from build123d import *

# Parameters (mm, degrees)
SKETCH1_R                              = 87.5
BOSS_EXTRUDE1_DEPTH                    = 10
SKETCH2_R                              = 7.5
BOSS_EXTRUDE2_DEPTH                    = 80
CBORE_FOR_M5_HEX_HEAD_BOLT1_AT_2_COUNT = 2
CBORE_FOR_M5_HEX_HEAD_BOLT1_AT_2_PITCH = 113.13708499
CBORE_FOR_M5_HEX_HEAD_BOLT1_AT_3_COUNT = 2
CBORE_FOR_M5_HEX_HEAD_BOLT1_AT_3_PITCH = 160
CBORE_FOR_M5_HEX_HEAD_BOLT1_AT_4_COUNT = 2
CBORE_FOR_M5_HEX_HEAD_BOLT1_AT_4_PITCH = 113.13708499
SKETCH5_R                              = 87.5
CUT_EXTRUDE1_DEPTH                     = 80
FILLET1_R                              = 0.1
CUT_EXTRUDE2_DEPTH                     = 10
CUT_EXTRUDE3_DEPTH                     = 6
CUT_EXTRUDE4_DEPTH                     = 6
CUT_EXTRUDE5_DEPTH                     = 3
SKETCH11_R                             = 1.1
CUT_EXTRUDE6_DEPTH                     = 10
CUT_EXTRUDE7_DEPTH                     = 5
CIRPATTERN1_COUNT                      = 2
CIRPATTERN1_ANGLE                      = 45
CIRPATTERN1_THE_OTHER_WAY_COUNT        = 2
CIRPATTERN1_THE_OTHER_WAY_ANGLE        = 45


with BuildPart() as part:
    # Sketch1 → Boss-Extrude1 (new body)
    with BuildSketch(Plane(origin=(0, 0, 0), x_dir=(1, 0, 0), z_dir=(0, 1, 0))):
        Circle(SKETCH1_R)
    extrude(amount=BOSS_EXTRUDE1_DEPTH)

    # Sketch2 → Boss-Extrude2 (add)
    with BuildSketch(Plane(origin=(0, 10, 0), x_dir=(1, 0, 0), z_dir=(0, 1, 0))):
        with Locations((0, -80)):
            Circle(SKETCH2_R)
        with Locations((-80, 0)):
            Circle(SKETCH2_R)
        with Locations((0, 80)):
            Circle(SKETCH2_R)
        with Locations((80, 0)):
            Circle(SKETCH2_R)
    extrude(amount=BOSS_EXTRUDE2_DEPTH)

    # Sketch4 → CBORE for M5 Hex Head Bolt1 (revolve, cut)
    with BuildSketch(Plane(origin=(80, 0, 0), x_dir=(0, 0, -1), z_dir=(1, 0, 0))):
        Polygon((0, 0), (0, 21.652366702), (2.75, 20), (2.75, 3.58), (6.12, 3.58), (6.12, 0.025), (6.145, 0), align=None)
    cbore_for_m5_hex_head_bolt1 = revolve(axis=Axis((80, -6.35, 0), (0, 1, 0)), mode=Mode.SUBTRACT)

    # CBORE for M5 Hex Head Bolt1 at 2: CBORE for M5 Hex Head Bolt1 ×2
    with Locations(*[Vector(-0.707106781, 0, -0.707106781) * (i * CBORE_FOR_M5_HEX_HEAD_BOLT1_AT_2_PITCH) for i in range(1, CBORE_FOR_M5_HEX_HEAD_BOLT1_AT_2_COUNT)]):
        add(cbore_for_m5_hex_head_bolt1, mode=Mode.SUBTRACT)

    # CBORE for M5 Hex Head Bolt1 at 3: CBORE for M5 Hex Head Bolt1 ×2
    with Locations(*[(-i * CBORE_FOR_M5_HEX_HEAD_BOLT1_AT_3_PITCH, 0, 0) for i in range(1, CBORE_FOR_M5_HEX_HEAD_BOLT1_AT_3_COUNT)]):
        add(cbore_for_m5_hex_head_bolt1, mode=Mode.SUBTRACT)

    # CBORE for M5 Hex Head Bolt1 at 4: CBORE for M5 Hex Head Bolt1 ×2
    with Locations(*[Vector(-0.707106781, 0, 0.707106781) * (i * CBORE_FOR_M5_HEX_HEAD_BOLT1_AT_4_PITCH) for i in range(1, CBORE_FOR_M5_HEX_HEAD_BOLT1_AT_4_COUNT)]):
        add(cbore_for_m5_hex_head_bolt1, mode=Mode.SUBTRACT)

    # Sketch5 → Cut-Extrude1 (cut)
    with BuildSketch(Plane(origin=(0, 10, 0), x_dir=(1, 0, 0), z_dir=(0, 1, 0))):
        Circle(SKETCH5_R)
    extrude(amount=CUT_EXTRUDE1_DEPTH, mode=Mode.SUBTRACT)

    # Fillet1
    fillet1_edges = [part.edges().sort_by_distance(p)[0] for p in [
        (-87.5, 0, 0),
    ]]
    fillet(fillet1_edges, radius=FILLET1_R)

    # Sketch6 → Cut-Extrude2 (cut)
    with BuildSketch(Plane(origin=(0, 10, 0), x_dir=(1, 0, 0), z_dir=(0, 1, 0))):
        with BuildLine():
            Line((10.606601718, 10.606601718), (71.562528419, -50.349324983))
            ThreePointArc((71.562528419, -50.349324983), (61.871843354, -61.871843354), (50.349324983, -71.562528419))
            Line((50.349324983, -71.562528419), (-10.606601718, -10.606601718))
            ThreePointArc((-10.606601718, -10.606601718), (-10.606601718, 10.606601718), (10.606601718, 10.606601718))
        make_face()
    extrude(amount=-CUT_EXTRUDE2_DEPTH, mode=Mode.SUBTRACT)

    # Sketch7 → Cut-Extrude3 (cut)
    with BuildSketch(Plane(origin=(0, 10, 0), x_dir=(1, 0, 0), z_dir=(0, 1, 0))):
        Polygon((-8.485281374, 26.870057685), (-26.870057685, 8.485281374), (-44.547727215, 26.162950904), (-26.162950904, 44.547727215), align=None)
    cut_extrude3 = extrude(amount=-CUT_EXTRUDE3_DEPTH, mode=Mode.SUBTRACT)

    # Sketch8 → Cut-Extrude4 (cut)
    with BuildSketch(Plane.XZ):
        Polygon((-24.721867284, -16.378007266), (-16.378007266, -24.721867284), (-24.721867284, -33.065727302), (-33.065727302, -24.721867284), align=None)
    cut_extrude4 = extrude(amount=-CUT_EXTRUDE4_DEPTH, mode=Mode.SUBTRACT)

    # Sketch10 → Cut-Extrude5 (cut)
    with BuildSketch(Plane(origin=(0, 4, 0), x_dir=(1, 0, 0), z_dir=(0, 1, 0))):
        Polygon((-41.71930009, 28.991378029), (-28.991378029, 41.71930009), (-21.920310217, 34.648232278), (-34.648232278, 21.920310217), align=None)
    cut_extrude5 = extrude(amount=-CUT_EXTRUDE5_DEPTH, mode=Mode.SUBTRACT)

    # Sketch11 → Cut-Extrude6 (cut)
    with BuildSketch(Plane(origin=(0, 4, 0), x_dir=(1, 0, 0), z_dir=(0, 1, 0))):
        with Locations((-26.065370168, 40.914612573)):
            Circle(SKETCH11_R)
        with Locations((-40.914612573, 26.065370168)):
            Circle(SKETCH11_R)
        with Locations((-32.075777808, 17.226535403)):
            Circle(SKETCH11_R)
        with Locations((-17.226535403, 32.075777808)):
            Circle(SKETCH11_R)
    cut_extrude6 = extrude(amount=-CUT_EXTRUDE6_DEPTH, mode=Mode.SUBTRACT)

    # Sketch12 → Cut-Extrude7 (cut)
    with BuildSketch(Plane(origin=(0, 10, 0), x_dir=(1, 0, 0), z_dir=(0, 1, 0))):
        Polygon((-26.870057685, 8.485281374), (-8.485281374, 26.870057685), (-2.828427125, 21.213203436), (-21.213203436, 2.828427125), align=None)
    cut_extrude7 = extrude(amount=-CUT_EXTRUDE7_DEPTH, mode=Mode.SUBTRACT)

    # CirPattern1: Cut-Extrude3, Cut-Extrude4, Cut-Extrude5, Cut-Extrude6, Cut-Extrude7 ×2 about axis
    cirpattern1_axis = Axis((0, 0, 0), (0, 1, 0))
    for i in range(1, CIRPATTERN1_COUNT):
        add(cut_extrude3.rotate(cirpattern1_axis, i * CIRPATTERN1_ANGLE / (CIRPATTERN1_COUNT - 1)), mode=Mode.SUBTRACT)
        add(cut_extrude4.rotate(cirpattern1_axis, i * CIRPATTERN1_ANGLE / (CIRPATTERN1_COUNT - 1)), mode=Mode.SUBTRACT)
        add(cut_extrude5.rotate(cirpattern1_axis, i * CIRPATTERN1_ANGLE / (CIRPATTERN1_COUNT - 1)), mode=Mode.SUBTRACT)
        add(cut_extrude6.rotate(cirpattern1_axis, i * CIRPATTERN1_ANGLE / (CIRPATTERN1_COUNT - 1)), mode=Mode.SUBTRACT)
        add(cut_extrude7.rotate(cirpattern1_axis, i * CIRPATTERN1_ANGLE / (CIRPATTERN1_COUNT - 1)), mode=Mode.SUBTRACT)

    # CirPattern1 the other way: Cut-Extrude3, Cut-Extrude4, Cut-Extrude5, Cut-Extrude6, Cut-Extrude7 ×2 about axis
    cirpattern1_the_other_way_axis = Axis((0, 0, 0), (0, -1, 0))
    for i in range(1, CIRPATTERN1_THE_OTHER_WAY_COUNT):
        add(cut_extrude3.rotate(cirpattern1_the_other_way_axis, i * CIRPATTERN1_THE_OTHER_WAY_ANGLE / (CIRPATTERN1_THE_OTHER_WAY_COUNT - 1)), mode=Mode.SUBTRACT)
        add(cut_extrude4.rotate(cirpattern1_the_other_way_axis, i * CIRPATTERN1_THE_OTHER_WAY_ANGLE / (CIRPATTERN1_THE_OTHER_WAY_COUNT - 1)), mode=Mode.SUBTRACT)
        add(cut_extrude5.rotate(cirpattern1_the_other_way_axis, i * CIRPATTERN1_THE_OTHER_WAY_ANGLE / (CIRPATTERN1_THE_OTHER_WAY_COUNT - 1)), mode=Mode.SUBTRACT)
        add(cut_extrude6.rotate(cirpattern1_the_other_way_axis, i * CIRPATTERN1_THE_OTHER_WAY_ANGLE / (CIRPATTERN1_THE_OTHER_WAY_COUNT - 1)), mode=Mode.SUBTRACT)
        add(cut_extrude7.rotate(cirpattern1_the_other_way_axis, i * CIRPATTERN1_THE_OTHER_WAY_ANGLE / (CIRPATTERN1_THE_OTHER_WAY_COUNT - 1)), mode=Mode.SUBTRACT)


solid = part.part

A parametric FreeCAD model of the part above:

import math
import FreeCAD as App
import Part
import Sketcher
Q = App.Units.Quantity


def edges_at(feature, points):
    """Names of the edges that pass closest to the given points."""
    edges = feature.Shape.Edges
    near = lambda p: min(range(len(edges)), key=lambda i: edges[i].distToShape(Part.Vertex(*p))[0])
    return sorted({f"Edge{near(p) + 1}" for p in points})


def add_polygon(sketch, points):
    """Adds a closed chain of lines whose ends are joined by coincident constraints."""
    first, n = sketch.GeometryCount, len(points)
    for a, b in zip(points, points[1:] + points[:1]):
        sketch.addGeometry(Part.LineSegment(App.Vector(*a, 0), App.Vector(*b, 0)), False)
    for i in range(n):
        sketch.addConstraint(Sketcher.Constraint("Coincident", first + i, 2, first + (i + 1) % n, 1))

doc = App.newDocument("Part")
body = doc.addObject("PartDesign::Body", "Body")

sketch1 = body.newObject("Sketcher::SketchObject", "Sketch")
sketch1.AttachmentSupport = (doc.getObject("XZ_Plane"), [""])
sketch1.MapMode = "FlatFace"
sketch1.addGeometry(Part.Circle(App.Vector(0, 0, 0), App.Vector(0, 0, 1), 87.5), False)
sketch1.addConstraint([
    Sketcher.Constraint("Coincident", 0, 3, -1, 1),
    Sketcher.Constraint("Diameter", 0, Q("175 mm")),
])
pad1 = body.newObject("PartDesign::Pad", "Pad")
pad1.Profile = sketch1
pad1.Length = 10
pad1.Reversed = True

sketch2 = body.newObject("Sketcher::SketchObject", "Sketch001")
sketch2.AttachmentSupport = (doc.getObject("XZ_Plane"), [""])
sketch2.MapMode = "FlatFace"
sketch2.AttachmentOffset = App.Placement(App.Vector(0, 0, -10), App.Rotation())
sketch2.addGeometry([
    Part.Circle(App.Vector(0, 80, 0), App.Vector(0, 0, 1), 7.5),
    Part.Circle(App.Vector(-80, 0, 0), App.Vector(0, 0, 1), 7.5),
    Part.Circle(App.Vector(0, -80, 0), App.Vector(0, 0, 1), 7.5),
    Part.Circle(App.Vector(80, 0, 0), App.Vector(0, 0, 1), 7.5),
], False)
sketch2.addConstraint([
    Sketcher.Constraint("Equal", 0, 1),
    Sketcher.Constraint("Equal", 1, 2),
    Sketcher.Constraint("Equal", 2, 3),
    Sketcher.Constraint("Symmetric", 0, 3, 2, 3, -1, 1),
    Sketcher.Constraint("Symmetric", 1, 3, 3, 3, -1, 1),
    Sketcher.Constraint("PointOnObject", 0, 3, -2),
    Sketcher.Constraint("PointOnObject", 1, 3, -1),
    Sketcher.Constraint("Diameter", 0, Q("15 mm")),
    Sketcher.Constraint("DistanceY", -1, 1, 0, 3, Q("80 mm")),
    Sketcher.Constraint("DistanceX", 1, 3, -1, 1, Q("80 mm")),
])
pad2 = body.newObject("PartDesign::Pad", "Pad001")
pad2.Profile = sketch2
pad2.Length = 80
pad2.Reversed = True

sketch3 = body.newObject("Sketcher::SketchObject", "Sketch002")
sketch3.AttachmentSupport = (doc.getObject("YZ_Plane"), [""])
sketch3.MapMode = "FlatFace"
sketch3.AttachmentOffset = App.Placement(App.Vector(0, 0, 80), App.Rotation())
add_polygon(sketch3, [(21.652367, 0), (0, 0), (0, -6.145), (0.025, -6.12), (3.58, -6.12), (3.58, -2.75), (20, -2.75)])
sketch3.addConstraint([
    Sketcher.Constraint("Horizontal", 0),
    Sketcher.Constraint("Vertical", 1),
    Sketcher.Constraint("Horizontal", 3),
    Sketcher.Constraint("Vertical", 4),
    Sketcher.Constraint("Horizontal", 5),
    Sketcher.Constraint("Coincident", 0, 2, -1, 1),
    Sketcher.Constraint("Angle", 2, Q("45 deg")),
    Sketcher.Constraint("Angle", 6, Q("59 deg")),
    Sketcher.Constraint("DistanceX", -1, 1, 5, 2, Q("20 mm")),
    Sketcher.Constraint("DistanceX", 5, 1, 5, 2, Q("16.42 mm")),
    Sketcher.Constraint("DistanceY", 4, 1, 4, 2, Q("3.37 mm")),
    Sketcher.Constraint("DistanceX", 3, 1, 3, 2, Q("3.555 mm")),
    Sketcher.Constraint("DistanceY", 1, 2, 1, 1, Q("6.145 mm")),
])
groove = body.newObject("PartDesign::Groove", "Groove")
groove.Profile = sketch3
groove.ReferenceAxis = (sketch3, ["H_Axis"])
groove.Angle = 360
doc.recompute()

datumline = body.newObject("PartDesign::Line", "DatumLine")
datumline.Placement = App.Placement(App.Vector(0, 0, 0), App.Rotation(App.Vector(0, 0, 1), App.Vector(-0.707106781, 0, -0.707106781)))
linearpattern = body.newObject("PartDesign::LinearPattern", "LinearPattern")
linearpattern.Originals = [groove]
linearpattern.Direction = (datumline, [""])
linearpattern.Mode = "offset"
linearpattern.Offset = 113.137085
linearpattern.Occurrences = 2
body.Tip = linearpattern
doc.recompute()

linearpattern2 = body.newObject("PartDesign::LinearPattern", "LinearPattern001")
linearpattern2.Originals = [groove]
linearpattern2.Direction = (doc.getObject("X_Axis"), [""])
linearpattern2.Mode = "offset"
linearpattern2.Offset = 160
linearpattern2.Occurrences = 2
linearpattern2.Reversed = True
body.Tip = linearpattern2
doc.recompute()

datumline2 = body.newObject("PartDesign::Line", "DatumLine001")
datumline2.Placement = App.Placement(App.Vector(0, 0, 0), App.Rotation(App.Vector(0, 0, 1), App.Vector(-0.707106781, 0, 0.707106781)))
linearpattern3 = body.newObject("PartDesign::LinearPattern", "LinearPattern002")
linearpattern3.Originals = [groove]
linearpattern3.Direction = (datumline2, [""])
linearpattern3.Mode = "offset"
linearpattern3.Offset = 113.137085
linearpattern3.Occurrences = 2
body.Tip = linearpattern3

sketch4 = body.newObject("Sketcher::SketchObject", "Sketch003")
sketch4.AttachmentSupport = (doc.getObject("XZ_Plane"), [""])
sketch4.MapMode = "FlatFace"
sketch4.AttachmentOffset = App.Placement(App.Vector(0, 0, -10), App.Rotation())
sketch4.addGeometry(Part.Circle(App.Vector(0, 0, 0), App.Vector(0, 0, 1), 87.5), False)
sketch4.addConstraint([
    Sketcher.Constraint("Coincident", 0, 3, -1, 1),
    Sketcher.Constraint("Diameter", 0, Q("175 mm")),
])
pocket1 = body.newObject("PartDesign::Pocket", "Pocket")
pocket1.Profile = sketch4
pocket1.Length = 80
doc.recompute()

fillet = body.newObject("PartDesign::Fillet", "Fillet")
fillet.Base = (pocket1, edges_at(pocket1, [(-87.5, 0, 0)]))
fillet.Radius = 0.1

sketch5 = body.newObject("Sketcher::SketchObject", "Sketch004")
sketch5.AttachmentSupport = (doc.getObject("XZ_Plane"), [""])
sketch5.MapMode = "FlatFace"
sketch5.AttachmentOffset = App.Placement(App.Vector(0, 0, -10), App.Rotation())
sketch5.addGeometry([
    Part.LineSegment(App.Vector(71.562528, 50.349325, 0), App.Vector(10.606602, -10.606602, 0)),
    Part.ArcOfCircle(Part.Circle(App.Vector(0, 0, 0), App.Vector(0, 0, 1), 15), math.radians(135), math.radians(315)),
    Part.LineSegment(App.Vector(-10.606602, 10.606602, 0), App.Vector(50.349325, 71.562528, 0)),
    Part.ArcOfCircle(Part.Circle(App.Vector(0, 0, 0), App.Vector(0, 0, 1), 87.5), math.radians(35.12911), math.radians(54.87089)),
], False)
sketch5.addConstraint([
    Sketcher.Constraint("Tangent", 0, 2, 1, 2),
    Sketcher.Constraint("Tangent", 1, 1, 2, 1),
    Sketcher.Constraint("Coincident", 2, 2, 3, 2),
    Sketcher.Constraint("Coincident", 3, 1, 0, 1),
    Sketcher.Constraint("Coincident", 1, 3, -1, 1),
    Sketcher.Constraint("Coincident", 3, 3, -1, 1),
    Sketcher.Constraint("Parallel", 0, 2),
    Sketcher.Constraint("Radius", 1, Q("15 mm")),
    Sketcher.Constraint("Radius", 3, Q("87.5 mm")),
    Sketcher.Constraint("Angle", 0, Q("-135 deg")),
])
pocket2 = body.newObject("PartDesign::Pocket", "Pocket001")
pocket2.Profile = sketch5
pocket2.Length = 10
pocket2.Reversed = True

sketch6 = body.newObject("Sketcher::SketchObject", "Sketch005")
sketch6.AttachmentSupport = (doc.getObject("XZ_Plane"), [""])
sketch6.MapMode = "FlatFace"
sketch6.AttachmentOffset = App.Placement(App.Vector(0, 0, -10), App.Rotation())
add_polygon(sketch6, [(-26.870058, -8.485281), (-8.485281, -26.870058), (-26.162951, -44.547727), (-44.547727, -26.162951)])
sketch6.addConstraint([
    Sketcher.Constraint("Perpendicular", 0, 1),
    Sketcher.Constraint("Perpendicular", 1, 2),
    Sketcher.Constraint("Perpendicular", 2, 3),
    Sketcher.Constraint("Angle", 0, Q("-45 deg")),
    Sketcher.Constraint("Distance", 0, Q("26 mm")),
    Sketcher.Constraint("Distance", 1, Q("25 mm")),
    Sketcher.Constraint("DistanceX", 0, 2, -1, 1, Q("8.485281 mm")),
    Sketcher.Constraint("DistanceY", 2, 2, -1, 1, Q("26.162951 mm")),
])
pocket3 = body.newObject("PartDesign::Pocket", "Pocket002")
pocket3.Profile = sketch6
pocket3.Length = 6
pocket3.Reversed = True

sketch7 = body.newObject("Sketcher::SketchObject", "Sketch006")
sketch7.AttachmentSupport = (doc.getObject("XZ_Plane"), [""])
sketch7.MapMode = "FlatFace"
add_polygon(sketch7, [(-16.378007, -24.721867), (-24.721867, -16.378007), (-33.065727, -24.721867), (-24.721867, -33.065727)])
sketch7.addConstraint([
    Sketcher.Constraint("Perpendicular", 0, 1),
    Sketcher.Constraint("Perpendicular", 1, 2),
    Sketcher.Constraint("Perpendicular", 2, 3),
    Sketcher.Constraint("Horizontal", 1, 2, 3, 2),
    Sketcher.Constraint("Vertical", 0, 2, 2, 2),
    Sketcher.Constraint("Distance", 0, Q("11.8 mm")),
    Sketcher.Constraint("DistanceX", 0, 2, -1, 1, Q("24.721867 mm")),
    Sketcher.Constraint("DistanceY", 0, 2, -1, 1, Q("16.378007 mm")),
])
pocket4 = body.newObject("PartDesign::Pocket", "Pocket003")
pocket4.Profile = sketch7
pocket4.Length = 6

sketch8 = body.newObject("Sketcher::SketchObject", "Sketch007")
sketch8.AttachmentSupport = (doc.getObject("XZ_Plane"), [""])
sketch8.MapMode = "FlatFace"
sketch8.AttachmentOffset = App.Placement(App.Vector(0, 0, -4), App.Rotation())
add_polygon(sketch8, [(-28.991378, -41.7193), (-41.7193, -28.991378), (-34.648232, -21.92031), (-21.92031, -34.648232)])
sketch8.addConstraint([
    Sketcher.Constraint("Perpendicular", 0, 1),
    Sketcher.Constraint("Perpendicular", 1, 2),
    Sketcher.Constraint("Perpendicular", 2, 3),
    Sketcher.Constraint("Angle", 0, Q("135 deg")),
    Sketcher.Constraint("Distance", 0, Q("18 mm")),
    Sketcher.Constraint("Distance", 1, Q("10 mm")),
    Sketcher.Constraint("DistanceX", 0, 2, -1, 1, Q("41.7193 mm")),
    Sketcher.Constraint("DistanceY", 3, 2, -1, 1, Q("41.7193 mm")),
])
pocket5 = body.newObject("PartDesign::Pocket", "Pocket004")
pocket5.Profile = sketch8
pocket5.Length = 3
pocket5.Reversed = True

sketch9 = body.newObject("Sketcher::SketchObject", "Sketch008")
sketch9.AttachmentSupport = (doc.getObject("XZ_Plane"), [""])
sketch9.MapMode = "FlatFace"
sketch9.AttachmentOffset = App.Placement(App.Vector(0, 0, -4), App.Rotation())
sketch9.addGeometry([
    Part.Circle(App.Vector(-26.06537, -40.914613, 0), App.Vector(0, 0, 1), 1.1),
    Part.Circle(App.Vector(-40.914613, -26.06537, 0), App.Vector(0, 0, 1), 1.1),
    Part.Circle(App.Vector(-32.075778, -17.226535, 0), App.Vector(0, 0, 1), 1.1),
    Part.Circle(App.Vector(-17.226535, -32.075778, 0), App.Vector(0, 0, 1), 1.1),
], False)
sketch9.addConstraint([
    Sketcher.Constraint("Equal", 0, 1),
    Sketcher.Constraint("Equal", 1, 2),
    Sketcher.Constraint("Equal", 2, 3),
    Sketcher.Constraint("Diameter", 0, Q("2.2 mm")),
    Sketcher.Constraint("DistanceX", 0, 3, -1, 1, Q("26.06537 mm")),
    Sketcher.Constraint("DistanceY", 1, 3, -1, 1, Q("26.06537 mm")),
    Sketcher.Constraint("DistanceY", 0, 3, -1, 1, Q("40.914613 mm")),
    Sketcher.Constraint("DistanceX", 1, 3, -1, 1, Q("40.914613 mm")),
    Sketcher.Constraint("DistanceX", 2, 3, -1, 1, Q("32.075778 mm")),
    Sketcher.Constraint("DistanceY", 2, 3, -1, 1, Q("17.226535 mm")),
    Sketcher.Constraint("DistanceX", 3, 3, -1, 1, Q("17.226535 mm")),
    Sketcher.Constraint("DistanceY", 3, 3, -1, 1, Q("32.075778 mm")),
])
pocket6 = body.newObject("PartDesign::Pocket", "Pocket005")
pocket6.Profile = sketch9
pocket6.Length = 10
pocket6.Reversed = True

sketch10 = body.newObject("Sketcher::SketchObject", "Sketch009")
sketch10.AttachmentSupport = (doc.getObject("XZ_Plane"), [""])
sketch10.MapMode = "FlatFace"
sketch10.AttachmentOffset = App.Placement(App.Vector(0, 0, -10), App.Rotation())
add_polygon(sketch10, [(-8.485281, -26.870058), (-26.870058, -8.485281), (-21.213203, -2.828427), (-2.828427, -21.213203)])
sketch10.addConstraint([
    Sketcher.Constraint("Perpendicular", 0, 1),
    Sketcher.Constraint("Perpendicular", 1, 2),
    Sketcher.Constraint("Perpendicular", 2, 3),
    Sketcher.Constraint("Angle", 0, Q("135 deg")),
    Sketcher.Constraint("Distance", 0, Q("26 mm")),
    Sketcher.Constraint("Distance", 1, Q("8 mm")),
    Sketcher.Constraint("DistanceY", 0, 2, -1, 1, Q("8.485281 mm")),
    Sketcher.Constraint("DistanceX", 3, 2, -1, 1, Q("8.485281 mm")),
])
pocket7 = body.newObject("PartDesign::Pocket", "Pocket006")
pocket7.Profile = sketch10
pocket7.Length = 5
pocket7.Reversed = True
doc.recompute()

polarpattern = body.newObject("PartDesign::PolarPattern", "PolarPattern")
polarpattern.Originals = [pocket3, pocket4, pocket5, pocket6, pocket7]
polarpattern.Axis = (doc.getObject("Y_Axis"), [""])
polarpattern.Angle = 45
polarpattern.Occurrences = 2
body.Tip = polarpattern
doc.recompute()

polarpattern2 = body.newObject("PartDesign::PolarPattern", "PolarPattern001")
polarpattern2.Originals = [pocket3, pocket4, pocket5, pocket6, pocket7]
polarpattern2.Axis = (doc.getObject("Y_Axis"), [""])
polarpattern2.Angle = 45
polarpattern2.Occurrences = 2
polarpattern2.Reversed = True
body.Tip = polarpattern2

doc.recompute()
